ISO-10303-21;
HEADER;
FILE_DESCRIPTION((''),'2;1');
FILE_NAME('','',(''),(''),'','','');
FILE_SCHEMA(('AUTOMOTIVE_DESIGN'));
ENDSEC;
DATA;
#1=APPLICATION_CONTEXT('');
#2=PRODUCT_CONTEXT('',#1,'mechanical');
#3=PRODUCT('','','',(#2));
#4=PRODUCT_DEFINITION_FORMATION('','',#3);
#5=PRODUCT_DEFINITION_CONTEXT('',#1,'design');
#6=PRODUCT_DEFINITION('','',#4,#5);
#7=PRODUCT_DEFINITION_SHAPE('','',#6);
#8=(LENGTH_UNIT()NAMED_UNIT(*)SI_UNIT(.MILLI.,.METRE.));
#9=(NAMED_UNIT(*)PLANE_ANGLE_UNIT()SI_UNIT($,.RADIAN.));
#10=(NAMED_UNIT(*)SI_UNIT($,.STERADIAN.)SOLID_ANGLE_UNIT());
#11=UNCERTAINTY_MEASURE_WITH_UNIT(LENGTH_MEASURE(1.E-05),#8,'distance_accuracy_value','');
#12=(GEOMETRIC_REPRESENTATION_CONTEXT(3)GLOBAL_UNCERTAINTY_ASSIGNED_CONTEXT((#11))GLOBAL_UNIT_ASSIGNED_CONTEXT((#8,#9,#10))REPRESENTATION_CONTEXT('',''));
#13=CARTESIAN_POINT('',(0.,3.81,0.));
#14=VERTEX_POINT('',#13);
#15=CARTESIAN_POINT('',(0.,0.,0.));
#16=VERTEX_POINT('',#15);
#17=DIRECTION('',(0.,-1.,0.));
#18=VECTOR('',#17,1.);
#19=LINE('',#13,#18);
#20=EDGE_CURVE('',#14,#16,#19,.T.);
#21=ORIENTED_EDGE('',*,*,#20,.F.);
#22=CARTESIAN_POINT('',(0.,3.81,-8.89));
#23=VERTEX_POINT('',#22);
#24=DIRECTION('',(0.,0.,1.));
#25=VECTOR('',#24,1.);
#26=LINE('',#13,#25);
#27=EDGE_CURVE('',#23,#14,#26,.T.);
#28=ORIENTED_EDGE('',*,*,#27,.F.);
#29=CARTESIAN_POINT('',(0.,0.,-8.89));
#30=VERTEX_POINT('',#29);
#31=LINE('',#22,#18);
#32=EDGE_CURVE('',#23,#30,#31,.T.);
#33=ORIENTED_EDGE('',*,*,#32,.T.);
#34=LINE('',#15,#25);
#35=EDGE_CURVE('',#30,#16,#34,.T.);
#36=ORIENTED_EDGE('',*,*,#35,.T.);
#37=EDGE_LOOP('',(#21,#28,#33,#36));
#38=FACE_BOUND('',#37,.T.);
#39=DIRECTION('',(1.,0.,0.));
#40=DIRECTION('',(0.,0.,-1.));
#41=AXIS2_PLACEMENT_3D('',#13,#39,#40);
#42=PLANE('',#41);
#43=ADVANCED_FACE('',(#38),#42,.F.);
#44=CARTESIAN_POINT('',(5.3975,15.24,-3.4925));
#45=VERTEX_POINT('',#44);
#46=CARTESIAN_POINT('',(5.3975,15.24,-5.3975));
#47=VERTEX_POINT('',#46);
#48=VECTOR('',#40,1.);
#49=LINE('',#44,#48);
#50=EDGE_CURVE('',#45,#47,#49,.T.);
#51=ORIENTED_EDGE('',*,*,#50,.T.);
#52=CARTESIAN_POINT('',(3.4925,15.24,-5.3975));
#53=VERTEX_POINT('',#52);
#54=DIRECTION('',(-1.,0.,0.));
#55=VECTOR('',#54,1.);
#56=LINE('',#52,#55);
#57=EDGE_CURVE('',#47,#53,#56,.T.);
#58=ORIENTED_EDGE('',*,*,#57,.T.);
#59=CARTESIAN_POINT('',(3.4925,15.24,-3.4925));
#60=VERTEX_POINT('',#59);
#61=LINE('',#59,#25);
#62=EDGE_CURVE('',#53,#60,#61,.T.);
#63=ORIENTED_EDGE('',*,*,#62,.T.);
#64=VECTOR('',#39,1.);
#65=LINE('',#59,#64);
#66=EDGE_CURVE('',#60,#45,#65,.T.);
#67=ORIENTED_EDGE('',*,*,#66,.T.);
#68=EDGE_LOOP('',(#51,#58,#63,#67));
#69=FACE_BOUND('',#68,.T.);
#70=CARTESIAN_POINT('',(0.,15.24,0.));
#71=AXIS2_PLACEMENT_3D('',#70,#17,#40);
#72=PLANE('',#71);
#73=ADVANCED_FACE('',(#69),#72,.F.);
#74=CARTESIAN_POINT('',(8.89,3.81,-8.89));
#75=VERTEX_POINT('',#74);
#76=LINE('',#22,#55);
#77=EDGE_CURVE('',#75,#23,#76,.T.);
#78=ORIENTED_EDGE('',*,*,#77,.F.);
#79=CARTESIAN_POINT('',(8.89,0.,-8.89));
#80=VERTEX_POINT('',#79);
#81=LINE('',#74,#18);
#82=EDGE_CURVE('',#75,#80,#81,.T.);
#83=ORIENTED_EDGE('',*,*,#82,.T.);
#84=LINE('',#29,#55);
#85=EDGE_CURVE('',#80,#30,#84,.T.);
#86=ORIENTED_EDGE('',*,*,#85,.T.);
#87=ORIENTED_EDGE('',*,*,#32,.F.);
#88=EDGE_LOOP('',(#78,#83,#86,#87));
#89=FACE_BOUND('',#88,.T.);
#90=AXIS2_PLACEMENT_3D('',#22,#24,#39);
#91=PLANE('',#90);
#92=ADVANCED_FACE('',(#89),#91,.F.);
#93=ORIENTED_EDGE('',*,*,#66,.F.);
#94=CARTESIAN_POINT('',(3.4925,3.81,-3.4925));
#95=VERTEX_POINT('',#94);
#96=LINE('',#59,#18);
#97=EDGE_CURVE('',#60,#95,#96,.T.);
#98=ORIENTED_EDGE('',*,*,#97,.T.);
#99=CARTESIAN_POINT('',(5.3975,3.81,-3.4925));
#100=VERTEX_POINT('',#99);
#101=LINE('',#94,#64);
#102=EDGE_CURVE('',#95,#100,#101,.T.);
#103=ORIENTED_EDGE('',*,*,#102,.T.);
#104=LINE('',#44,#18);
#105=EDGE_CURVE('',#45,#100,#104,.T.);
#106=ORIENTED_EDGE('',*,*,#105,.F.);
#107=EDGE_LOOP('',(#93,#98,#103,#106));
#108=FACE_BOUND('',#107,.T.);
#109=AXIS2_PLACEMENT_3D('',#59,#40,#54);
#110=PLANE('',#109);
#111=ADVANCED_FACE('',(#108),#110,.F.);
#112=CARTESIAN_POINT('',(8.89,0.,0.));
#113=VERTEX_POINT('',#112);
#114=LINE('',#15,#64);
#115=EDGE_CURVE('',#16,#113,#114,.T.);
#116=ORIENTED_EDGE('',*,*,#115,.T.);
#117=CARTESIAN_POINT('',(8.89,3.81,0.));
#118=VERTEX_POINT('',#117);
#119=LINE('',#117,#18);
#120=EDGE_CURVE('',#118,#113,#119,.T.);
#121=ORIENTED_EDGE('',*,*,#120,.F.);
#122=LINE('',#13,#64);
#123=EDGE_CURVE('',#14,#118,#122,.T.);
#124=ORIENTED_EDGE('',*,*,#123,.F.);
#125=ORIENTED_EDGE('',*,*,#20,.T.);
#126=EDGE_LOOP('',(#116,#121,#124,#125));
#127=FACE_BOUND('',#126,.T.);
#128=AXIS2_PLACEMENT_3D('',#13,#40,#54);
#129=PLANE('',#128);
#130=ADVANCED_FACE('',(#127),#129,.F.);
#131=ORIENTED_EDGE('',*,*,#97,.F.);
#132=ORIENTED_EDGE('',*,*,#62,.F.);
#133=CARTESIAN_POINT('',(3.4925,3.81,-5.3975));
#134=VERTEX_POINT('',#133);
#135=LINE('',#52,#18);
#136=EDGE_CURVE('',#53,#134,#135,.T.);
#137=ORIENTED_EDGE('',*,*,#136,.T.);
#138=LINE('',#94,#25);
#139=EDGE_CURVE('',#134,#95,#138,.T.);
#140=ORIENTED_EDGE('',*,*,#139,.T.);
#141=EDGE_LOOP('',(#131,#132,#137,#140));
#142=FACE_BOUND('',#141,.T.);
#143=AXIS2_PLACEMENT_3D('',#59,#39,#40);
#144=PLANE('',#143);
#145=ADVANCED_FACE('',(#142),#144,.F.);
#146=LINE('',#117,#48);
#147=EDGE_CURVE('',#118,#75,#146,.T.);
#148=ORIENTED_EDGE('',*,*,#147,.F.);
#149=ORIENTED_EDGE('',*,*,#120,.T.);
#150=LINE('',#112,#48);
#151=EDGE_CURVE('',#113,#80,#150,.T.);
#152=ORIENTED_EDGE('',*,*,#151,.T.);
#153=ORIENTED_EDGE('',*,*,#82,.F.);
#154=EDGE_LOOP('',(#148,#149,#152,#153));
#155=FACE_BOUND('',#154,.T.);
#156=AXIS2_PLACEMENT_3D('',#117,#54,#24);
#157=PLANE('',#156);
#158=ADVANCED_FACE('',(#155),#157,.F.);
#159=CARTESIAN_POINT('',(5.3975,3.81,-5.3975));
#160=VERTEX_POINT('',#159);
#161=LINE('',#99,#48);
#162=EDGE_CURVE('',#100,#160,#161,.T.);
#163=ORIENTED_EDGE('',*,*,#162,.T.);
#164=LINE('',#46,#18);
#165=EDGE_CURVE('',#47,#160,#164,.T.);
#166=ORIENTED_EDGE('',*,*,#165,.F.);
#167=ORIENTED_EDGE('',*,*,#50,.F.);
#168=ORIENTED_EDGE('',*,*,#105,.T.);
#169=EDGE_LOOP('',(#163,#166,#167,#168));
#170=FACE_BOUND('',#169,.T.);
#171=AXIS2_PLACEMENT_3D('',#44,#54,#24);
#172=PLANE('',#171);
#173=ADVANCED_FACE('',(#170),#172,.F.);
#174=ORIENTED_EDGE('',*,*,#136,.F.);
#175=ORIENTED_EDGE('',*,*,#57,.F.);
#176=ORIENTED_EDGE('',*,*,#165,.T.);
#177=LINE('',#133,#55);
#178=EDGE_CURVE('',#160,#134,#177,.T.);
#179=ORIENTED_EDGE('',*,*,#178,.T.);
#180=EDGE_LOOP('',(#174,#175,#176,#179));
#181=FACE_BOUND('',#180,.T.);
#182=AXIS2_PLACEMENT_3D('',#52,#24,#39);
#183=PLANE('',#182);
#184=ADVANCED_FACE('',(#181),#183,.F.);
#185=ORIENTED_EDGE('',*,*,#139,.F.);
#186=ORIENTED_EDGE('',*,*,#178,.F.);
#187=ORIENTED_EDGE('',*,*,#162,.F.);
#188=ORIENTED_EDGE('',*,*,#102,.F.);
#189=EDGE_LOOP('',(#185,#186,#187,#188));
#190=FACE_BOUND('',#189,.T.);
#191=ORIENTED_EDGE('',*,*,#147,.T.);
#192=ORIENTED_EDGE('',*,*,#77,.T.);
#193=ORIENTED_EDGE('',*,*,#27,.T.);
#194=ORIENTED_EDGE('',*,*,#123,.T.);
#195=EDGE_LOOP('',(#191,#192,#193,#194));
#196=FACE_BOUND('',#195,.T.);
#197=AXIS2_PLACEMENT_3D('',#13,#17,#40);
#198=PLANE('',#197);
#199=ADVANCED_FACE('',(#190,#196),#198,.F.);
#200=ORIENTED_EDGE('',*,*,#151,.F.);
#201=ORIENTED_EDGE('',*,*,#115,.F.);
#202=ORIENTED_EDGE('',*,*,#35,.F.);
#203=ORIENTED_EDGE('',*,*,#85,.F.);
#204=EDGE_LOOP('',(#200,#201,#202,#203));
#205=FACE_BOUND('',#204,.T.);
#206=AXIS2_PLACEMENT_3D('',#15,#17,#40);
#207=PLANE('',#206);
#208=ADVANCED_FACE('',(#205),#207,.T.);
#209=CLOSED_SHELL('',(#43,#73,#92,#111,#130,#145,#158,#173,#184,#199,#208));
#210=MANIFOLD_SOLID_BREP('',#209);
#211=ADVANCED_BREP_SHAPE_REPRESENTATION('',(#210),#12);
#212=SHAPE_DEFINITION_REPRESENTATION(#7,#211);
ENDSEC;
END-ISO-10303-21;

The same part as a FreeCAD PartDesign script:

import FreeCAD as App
import Part
import Sketcher
Q = App.Units.Quantity


def add_polygon(sketch, points):
    """Adds a closed chain of lines whose ends are joined by coincident constraints."""
    first, n = sketch.GeometryCount, len(points)
    for a, b in zip(points, points[1:] + points[:1]):
        sketch.addGeometry(Part.LineSegment(App.Vector(*a, 0), App.Vector(*b, 0)), False)
    for i in range(n):
        sketch.addConstraint(Sketcher.Constraint("Coincident", first + i, 2, first + (i + 1) % n, 1))

doc = App.newDocument("Part")
params = doc.addObject("Spreadsheet::Sheet", "Params")
for row, (alias, value) in enumerate([
    ("sketch1_width", "0.35 in"),
    ("pad1_length", "0.15 in"),
    ("sketch2_width", "0.075 in"),
    ("pad2_length", "0.45 in"),
], start=1):
    params.set(f"A{row}", alias)
    params.set(f"B{row}", "=" + value)
    params.setAlias(f"B{row}", alias)

body = doc.addObject("PartDesign::Body", "Body")

sketch1 = body.newObject("Sketcher::SketchObject", "Sketch")
sketch1.AttachmentSupport = (doc.getObject("XZ_Plane"), [""])
sketch1.MapMode = "FlatFace"
add_polygon(sketch1, [(0, -8.89), (0, 0), (8.89, 0), (8.89, -8.89)])
sketch1.addConstraint([
    Sketcher.Constraint("Vertical", 0),
    Sketcher.Constraint("Horizontal", 1),
    Sketcher.Constraint("Vertical", 2),
    Sketcher.Constraint("Horizontal", 3),
    Sketcher.Constraint("Coincident", 0, 2, -1, 1),
    Sketcher.Constraint("Equal", 3, 0),
    Sketcher.Constraint("DistanceX", 1, 1, 1, 2, Q("0.35 in")),
])
sketch1.setExpression("Constraints[10]", "Params.sketch1_width")
pad1 = body.newObject("PartDesign::Pad", "Pad")
pad1.Profile = sketch1
pad1.setExpression("Length", "Params.pad1_length")
pad1.Reversed = True

sketch2 = body.newObject("Sketcher::SketchObject", "Sketch001")
sketch2.AttachmentSupport = (doc.getObject("XZ_Plane"), [""])
sketch2.MapMode = "FlatFace"
sketch2.AttachmentOffset = App.Placement(App.Vector(0, 0, -0.15 * 25.4), App.Rotation())
add_polygon(sketch2, [(3.4925, -5.3975), (3.4925, -3.4925), (5.3975, -3.4925), (5.3975, -5.3975)])
sketch2.addConstraint([
    Sketcher.Constraint("Vertical", 0),
    Sketcher.Constraint("Horizontal", 1),
    Sketcher.Constraint("Vertical", 2),
    Sketcher.Constraint("Horizontal", 3),
    Sketcher.Constraint("Equal", 3, 0),
    Sketcher.Constraint("DistanceX", 1, 1, 1, 2, Q("0.075 in")),
    Sketcher.Constraint("DistanceX", -1, 1, 0, 2, Q("0.1375 in")),
    Sketcher.Constraint("DistanceY", 0, 2, -1, 1, Q("0.1375 in")),
])
sketch2.setExpression("Constraints[9]", "Params.sketch2_width")
pad2 = body.newObject("PartDesign::Pad", "Pad001")
pad2.Profile = sketch2
pad2.setExpression("Length", "Params.pad2_length")
pad2.Reversed = True

doc.recompute()
